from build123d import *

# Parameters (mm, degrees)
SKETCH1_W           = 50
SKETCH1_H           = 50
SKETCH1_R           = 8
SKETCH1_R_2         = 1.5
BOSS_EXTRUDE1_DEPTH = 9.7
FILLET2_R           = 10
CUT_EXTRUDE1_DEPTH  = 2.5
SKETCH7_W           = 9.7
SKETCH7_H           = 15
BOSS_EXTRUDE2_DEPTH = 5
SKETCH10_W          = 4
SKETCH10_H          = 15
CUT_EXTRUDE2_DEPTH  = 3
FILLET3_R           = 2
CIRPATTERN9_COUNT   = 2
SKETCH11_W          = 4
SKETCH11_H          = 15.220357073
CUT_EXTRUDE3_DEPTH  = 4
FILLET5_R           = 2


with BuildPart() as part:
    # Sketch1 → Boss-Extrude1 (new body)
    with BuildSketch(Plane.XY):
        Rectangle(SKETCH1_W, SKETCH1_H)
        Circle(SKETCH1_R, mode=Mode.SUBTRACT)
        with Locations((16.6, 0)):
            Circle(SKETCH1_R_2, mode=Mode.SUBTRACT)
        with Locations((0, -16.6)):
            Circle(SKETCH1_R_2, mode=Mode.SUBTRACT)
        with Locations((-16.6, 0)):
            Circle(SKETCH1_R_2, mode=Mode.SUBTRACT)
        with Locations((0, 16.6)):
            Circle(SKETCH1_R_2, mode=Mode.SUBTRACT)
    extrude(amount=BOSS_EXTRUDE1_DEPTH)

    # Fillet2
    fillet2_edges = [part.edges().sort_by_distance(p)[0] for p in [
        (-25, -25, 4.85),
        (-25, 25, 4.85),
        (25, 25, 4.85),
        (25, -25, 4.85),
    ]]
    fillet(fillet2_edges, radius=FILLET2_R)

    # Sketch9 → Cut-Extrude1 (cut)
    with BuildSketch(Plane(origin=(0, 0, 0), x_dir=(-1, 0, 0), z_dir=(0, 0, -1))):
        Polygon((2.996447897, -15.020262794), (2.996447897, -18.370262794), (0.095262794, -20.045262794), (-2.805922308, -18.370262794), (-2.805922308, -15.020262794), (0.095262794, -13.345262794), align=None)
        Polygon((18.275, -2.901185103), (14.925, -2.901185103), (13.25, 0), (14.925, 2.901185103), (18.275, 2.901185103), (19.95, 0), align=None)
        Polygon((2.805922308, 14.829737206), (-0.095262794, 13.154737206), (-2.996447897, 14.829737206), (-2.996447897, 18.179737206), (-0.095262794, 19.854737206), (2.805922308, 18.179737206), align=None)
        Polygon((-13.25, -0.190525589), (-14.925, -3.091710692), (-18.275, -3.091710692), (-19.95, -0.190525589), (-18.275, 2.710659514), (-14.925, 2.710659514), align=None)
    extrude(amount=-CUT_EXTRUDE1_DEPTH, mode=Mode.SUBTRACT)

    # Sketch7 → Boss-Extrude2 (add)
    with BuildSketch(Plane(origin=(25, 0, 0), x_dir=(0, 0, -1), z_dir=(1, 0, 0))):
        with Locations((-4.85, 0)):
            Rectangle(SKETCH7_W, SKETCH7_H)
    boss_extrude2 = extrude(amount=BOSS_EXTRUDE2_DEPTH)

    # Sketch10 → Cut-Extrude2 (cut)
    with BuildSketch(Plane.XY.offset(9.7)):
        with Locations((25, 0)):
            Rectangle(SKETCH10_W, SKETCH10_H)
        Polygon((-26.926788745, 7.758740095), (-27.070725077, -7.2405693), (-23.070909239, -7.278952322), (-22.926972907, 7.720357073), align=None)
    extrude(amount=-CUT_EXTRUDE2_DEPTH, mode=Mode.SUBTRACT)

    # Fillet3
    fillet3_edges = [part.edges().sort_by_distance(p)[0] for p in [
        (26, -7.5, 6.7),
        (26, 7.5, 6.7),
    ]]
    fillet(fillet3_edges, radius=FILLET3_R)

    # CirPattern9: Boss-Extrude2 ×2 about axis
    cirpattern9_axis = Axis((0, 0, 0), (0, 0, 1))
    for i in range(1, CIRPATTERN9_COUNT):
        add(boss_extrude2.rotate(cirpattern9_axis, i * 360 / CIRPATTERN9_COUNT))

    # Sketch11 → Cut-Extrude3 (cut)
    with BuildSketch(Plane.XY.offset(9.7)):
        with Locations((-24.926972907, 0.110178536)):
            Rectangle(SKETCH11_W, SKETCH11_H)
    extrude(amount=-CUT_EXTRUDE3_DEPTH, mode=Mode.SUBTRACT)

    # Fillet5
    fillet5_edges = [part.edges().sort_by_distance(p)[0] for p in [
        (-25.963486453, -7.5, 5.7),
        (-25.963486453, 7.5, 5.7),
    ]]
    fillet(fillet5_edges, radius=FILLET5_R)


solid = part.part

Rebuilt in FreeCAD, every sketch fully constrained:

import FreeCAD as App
import Part
import Sketcher

V = App.Vector
Q = App.Units.Quantity


def edges_at(feature, points):
    """Names of the edges that pass closest to the given points."""
    edges = feature.Shape.Edges
    near = lambda p: min(range(len(edges)), key=lambda i: edges[i].distToShape(Part.Vertex(*p))[0])
    return sorted({f"Edge{near(p) + 1}" for p in points})

doc = App.newDocument("Part")
body = doc.addObject("PartDesign::Body", "Body")

# Sketch on XY plane
sketch1 = body.newObject("Sketcher::SketchObject", "Sketch")
sketch1.AttachmentSupport = (doc.getObject("XY_Plane"), [""])
sketch1.MapMode = "FlatFace"
sketch1.addGeometry([
    Part.LineSegment(V(-25, 25, 0), V(-25, -25, 0)),  # 0
    Part.LineSegment(V(-25, -25, 0), V(25, -25, 0)),  # 1
    Part.LineSegment(V(25, -25, 0), V(25, 25, 0)),  # 2
    Part.LineSegment(V(25, 25, 0), V(-25, 25, 0)),  # 3
    Part.Circle(V(0, -16.6, 0), V(0, 0, 1), 1.5),  # 4
    Part.Circle(V(-16.6, 0, 0), V(0, 0, 1), 1.5),  # 5
    Part.Circle(V(0, 0, 0), V(0, 0, 1), 8),  # 6
    Part.Circle(V(16.6, 0, 0), V(0, 0, 1), 1.5),  # 7
    Part.Circle(V(0, 16.6, 0), V(0, 0, 1), 1.5),  # 8
], False)
sketch1.addConstraint([
    Sketcher.Constraint("Coincident", 0, 2, 1, 1),
    Sketcher.Constraint("Coincident", 1, 2, 2, 1),
    Sketcher.Constraint("Coincident", 2, 2, 3, 1),
    Sketcher.Constraint("Coincident", 3, 2, 0, 1),
    Sketcher.Constraint("Vertical", 0),
    Sketcher.Constraint("Horizontal", 1),
    Sketcher.Constraint("Vertical", 2),
    Sketcher.Constraint("Horizontal", 3),
    Sketcher.Constraint("Coincident", 6, 3, -1, 1),
    Sketcher.Constraint("Equal", 4, 5),
    Sketcher.Constraint("Equal", 5, 7),
    Sketcher.Constraint("Equal", 7, 8),
    Sketcher.Constraint("Symmetric", 5, 3, 7, 3, -1, 1),
    Sketcher.Constraint("Symmetric", 4, 3, 8, 3, -1, 1),
    Sketcher.Constraint("Symmetric", 0, 2, 2, 2, -1, 1),
    Sketcher.Constraint("PointOnObject", 4, 3, -2),
    Sketcher.Constraint("PointOnObject", 5, 3, -1),
    Sketcher.Constraint("Equal", 3, 0),
    Sketcher.Constraint("Diameter", 4, Q("3 mm")),
    Sketcher.Constraint("Diameter", 6, Q("16 mm")),
    Sketcher.Constraint("DistanceX", 1, 1, 1, 2, Q("50 mm")),
    Sketcher.Constraint("DistanceY", 4, 3, -1, 1, Q("16.6 mm")),
    Sketcher.Constraint("DistanceX", 5, 3, -1, 1, Q("16.6 mm")),
])
pad1 = body.newObject("PartDesign::Pad", "Pad")
pad1.Profile = sketch1
pad1.Length = 9.7
doc.recompute()

fillet = body.newObject("PartDesign::Fillet", "Fillet")
fillet.Base = (pad1, edges_at(pad1, [
    (-25, -25, 4.85),
    (-25, 25, 4.85),
    (25, 25, 4.85),
    (25, -25, 4.85),
]))
fillet.Radius = 10

# Sketch on XY plane
sketch2 = body.newObject("Sketcher::SketchObject", "Sketch001")
sketch2.AttachmentSupport = (doc.getObject("XY_Plane"), [""])
sketch2.MapMode = "FlatFace"
sketch2.addGeometry([
    Part.LineSegment(V(-2.996448, -18.370263, 0), V(-2.996448, -15.020263, 0)),  # 0
    Part.LineSegment(V(-2.996448, -15.020263, 0), V(-0.095263, -13.345263, 0)),  # 1
    Part.LineSegment(V(-0.095263, -13.345263, 0), V(2.805922, -15.020263, 0)),  # 2
    Part.LineSegment(V(2.805922, -15.020263, 0), V(2.805922, -18.370263, 0)),  # 3
    Part.LineSegment(V(2.805922, -18.370263, 0), V(-0.095263, -20.045263, 0)),  # 4
    Part.LineSegment(V(-0.095263, -20.045263, 0), V(-2.996448, -18.370263, 0)),  # 5
    Part.LineSegment(V(-14.925, -2.901185, 0), V(-18.275, -2.901185, 0)),  # 6
    Part.LineSegment(V(-18.275, -2.901185, 0), V(-19.95, 0, 0)),  # 7
    Part.LineSegment(V(-19.95, 0, 0), V(-18.275, 2.901185, 0)),  # 8
    Part.LineSegment(V(-18.275, 2.901185, 0), V(-14.925, 2.901185, 0)),  # 9
    Part.LineSegment(V(-14.925, 2.901185, 0), V(-13.25, 0, 0)),  # 10
    Part.LineSegment(V(-13.25, 0, 0), V(-14.925, -2.901185, 0)),  # 11
    Part.LineSegment(V(0.095263, 13.154737, 0), V(-2.805922, 14.829737, 0)),  # 12
    Part.LineSegment(V(-2.805922, 14.829737, 0), V(-2.805922, 18.179737, 0)),  # 13
    Part.LineSegment(V(-2.805922, 18.179737, 0), V(0.095263, 19.854737, 0)),  # 14
    Part.LineSegment(V(0.095263, 19.854737, 0), V(2.996448, 18.179737, 0)),  # 15
    Part.LineSegment(V(2.996448, 18.179737, 0), V(2.996448, 14.829737, 0)),  # 16
    Part.LineSegment(V(2.996448, 14.829737, 0), V(0.095263, 13.154737, 0)),  # 17
    Part.LineSegment(V(14.925, -3.091711, 0), V(13.25, -0.190526, 0)),  # 18
    Part.LineSegment(V(13.25, -0.190526, 0), V(14.925, 2.71066, 0)),  # 19
    Part.LineSegment(V(14.925, 2.71066, 0), V(18.275, 2.71066, 0)),  # 20
    Part.LineSegment(V(18.275, 2.71066, 0), V(19.95, -0.190526, 0)),  # 21
    Part.LineSegment(V(19.95, -0.190526, 0), V(18.275, -3.091711, 0)),  # 22
    Part.LineSegment(V(18.275, -3.091711, 0), V(14.925, -3.091711, 0)),  # 23
], False)
sketch2.addConstraint([
    Sketcher.Constraint("Coincident", 0, 2, 1, 1),
    Sketcher.Constraint("Coincident", 1, 2, 2, 1),
    Sketcher.Constraint("Coincident", 2, 2, 3, 1),
    Sketcher.Constraint("Coincident", 3, 2, 4, 1),
    Sketcher.Constraint("Coincident", 4, 2, 5, 1),
    Sketcher.Constraint("Coincident", 5, 2, 0, 1),
    Sketcher.Constraint("Coincident", 6, 2, 7, 1),
    Sketcher.Constraint("Coincident", 7, 2, 8, 1),
    Sketcher.Constraint("Coincident", 8, 2, 9, 1),
    Sketcher.Constraint("Coincident", 9, 2, 10, 1),
    Sketcher.Constraint("Coincident", 10, 2, 11, 1),
    Sketcher.Constraint("Coincident", 11, 2, 6, 1),
    Sketcher.Constraint("Coincident", 12, 2, 13, 1),
    Sketcher.Constraint("Coincident", 13, 2, 14, 1),
    Sketcher.Constraint("Coincident", 14, 2, 15, 1),
    Sketcher.Constraint("Coincident", 15, 2, 16, 1),
    Sketcher.Constraint("Coincident", 16, 2, 17, 1),
    Sketcher.Constraint("Coincident", 17, 2, 12, 1),
    Sketcher.Constraint("Coincident", 18, 2, 19, 1),
    Sketcher.Constraint("Coincident", 19, 2, 20, 1),
    Sketcher.Constraint("Coincident", 20, 2, 21, 1),
    Sketcher.Constraint("Coincident", 21, 2, 22, 1),
    Sketcher.Constraint("Coincident", 22, 2, 23, 1),
    Sketcher.Constraint("Coincident", 23, 2, 18, 1),
    Sketcher.Constraint("Vertical", 0),
    Sketcher.Constraint("Vertical", 3),
    Sketcher.Constraint("Horizontal", 6),
    Sketcher.Constraint("Horizontal", 9),
    Sketcher.Constraint("Vertical", 13),
    Sketcher.Constraint("Vertical", 16),
    Sketcher.Constraint("Horizontal", 20),
    Sketcher.Constraint("Horizontal", 23),
    Sketcher.Constraint("Symmetric", 6, 2, 8, 2, -1),
    Sketcher.Constraint("PointOnObject", 7, 2, -1),
    Sketcher.Constraint("PointOnObject", 10, 2, -1),
    Sketcher.Constraint("Parallel", 1, 4),
    Sketcher.Constraint("Parallel", 2, 5),
    Sketcher.Constraint("Perpendicular", 4, 7),
    Sketcher.Constraint("Perpendicular", 5, 8),
    Sketcher.Constraint("Parallel", 7, 10),
    Sketcher.Constraint("Parallel", 8, 11),
    Sketcher.Constraint("Perpendicular", 11, 12),
    Sketcher.Constraint("Perpendicular", 10, 14),
    Sketcher.Constraint("Parallel", 12, 15),
    Sketcher.Constraint("Parallel", 14, 17),
    Sketcher.Constraint("Perpendicular", 17, 18),
    Sketcher.Constraint("Perpendicular", 15, 19),
    Sketcher.Constraint("Parallel", 18, 21),
    Sketcher.Constraint("Parallel", 19, 22),
    Sketcher.Constraint("Horizontal", 0, 2, 2, 2),
    Sketcher.Constraint("Horizontal", 3, 2, 5, 2),
    Sketcher.Constraint("Horizontal", 13, 2, 15, 2),
    Sketcher.Constraint("Horizontal", 12, 2, 16, 2),
    Sketcher.Constraint("Horizontal", 18, 2, 21, 2),
    Sketcher.Constraint("Vertical", 20, 2, 22, 2),
    Sketcher.Constraint("Equal", 9, 20),
    Sketcher.Constraint("Equal", 23, 0),
    Sketcher.Constraint("Equal", 3, 13),
    Sketcher.Constraint("Equal", 5, 7),
    Sketcher.Constraint("Equal", 11, 12),
    Sketcher.Constraint("Equal", 17, 18),
    Sketcher.Constraint("Angle", 1, Q("30 deg")),
    Sketcher.Constraint("DistanceX", 6, 2, 6, 1, Q("3.35 mm")),
    Sketcher.Constraint("DistanceY", 4, 2, 1, 2, Q("6.7 mm")),
    Sketcher.Constraint("DistanceX", 7, 2, -1, 1, Q("19.95 mm")),
    Sketcher.Constraint("DistanceX", -1, 1, 18, 2, Q("13.25 mm")),
    Sketcher.Constraint("DistanceY", -1, 1, 19, 2, Q("2.71066 mm")),
    Sketcher.Constraint("DistanceX", 0, 2, -1, 1, Q("2.996448 mm")),
    Sketcher.Constraint("DistanceY", 0, 2, -1, 1, Q("15.020263 mm")),
    Sketcher.Constraint("DistanceX", 12, 2, -1, 1, Q("2.805922 mm")),
    Sketcher.Constraint("DistanceY", -1, 1, 12, 2, Q("14.829737 mm")),
])
pocket1 = body.newObject("PartDesign::Pocket", "Pocket")
pocket1.Profile = sketch2
pocket1.Length = 2.5
pocket1.Reversed = True

# Sketch on YZ plane
sketch3 = body.newObject("Sketcher::SketchObject", "Sketch002")
sketch3.AttachmentSupport = (doc.getObject("YZ_Plane"), [""])
sketch3.MapMode = "FlatFace"
sketch3.AttachmentOffset = App.Placement(V(0, 0, 25), App.Rotation())
sketch3.addGeometry([
    Part.LineSegment(V(7.5, 9.7, 0), V(-7.5, 9.7, 0)),
    Part.LineSegment(V(-7.5, 9.7, 0), V(-7.5, 0, 0)),
    Part.LineSegment(V(-7.5, 0, 0), V(7.5, 0, 0)),
    Part.LineSegment(V(7.5, 0, 0), V(7.5, 9.7, 0)),
], False)
sketch3.addConstraint([
    Sketcher.Constraint("Coincident", 0, 2, 1, 1),
    Sketcher.Constraint("Coincident", 1, 2, 2, 1),
    Sketcher.Constraint("Coincident", 2, 2, 3, 1),
    Sketcher.Constraint("Coincident", 3, 2, 0, 1),
    Sketcher.Constraint("Horizontal", 0),
    Sketcher.Constraint("Vertical", 1),
    Sketcher.Constraint("Horizontal", 2),
    Sketcher.Constraint("Vertical", 3),
    Sketcher.Constraint("Symmetric", 1, 2, 2, 2, -1, 1),
    Sketcher.Constraint("DistanceX", 0, 2, 0, 1, Q("15 mm")),
    Sketcher.Constraint("DistanceY", 1, 2, 1, 1, Q("9.7 mm")),
])
pad2 = body.newObject("PartDesign::Pad", "Pad001")
pad2.Profile = sketch3
pad2.Length = 5

# Sketch on XY plane
sketch4 = body.newObject("Sketcher::SketchObject", "Sketch003")
sketch4.AttachmentSupport = (doc.getObject("XY_Plane"), [""])
sketch4.MapMode = "FlatFace"
sketch4.AttachmentOffset = App.Placement(V(0, 0, 9.7), App.Rotation())
sketch4.addGeometry([
    Part.LineSegment(V(23, 7.5, 0), V(23, -7.5, 0)),  # 0
    Part.LineSegment(V(23, -7.5, 0), V(27, -7.5, 0)),  # 1
    Part.LineSegment(V(27, -7.5, 0), V(27, 7.5, 0)),  # 2
    Part.LineSegment(V(27, 7.5, 0), V(23, 7.5, 0)),  # 3
    Part.LineSegment(V(-26.926789, 7.75874, 0), V(-27.070725, -7.240569, 0)),  # 4
    Part.LineSegment(V(-27.070725, -7.240569, 0), V(-23.070909, -7.278952, 0)),  # 5
    Part.LineSegment(V(-23.070909, -7.278952, 0), V(-22.926973, 7.720357, 0)),  # 6
    Part.LineSegment(V(-22.926973, 7.720357, 0), V(-26.926789, 7.75874, 0)),  # 7
], False)
sketch4.addConstraint([
    Sketcher.Constraint("Coincident", 0, 2, 1, 1),
    Sketcher.Constraint("Coincident", 1, 2, 2, 1),
    Sketcher.Constraint("Coincident", 2, 2, 3, 1),
    Sketcher.Constraint("Coincident", 3, 2, 0, 1),
    Sketcher.Constraint("Coincident", 4, 2, 5, 1),
    Sketcher.Constraint("Coincident", 5, 2, 6, 1),
    Sketcher.Constraint("Coincident", 6, 2, 7, 1),
    Sketcher.Constraint("Coincident", 7, 2, 4, 1),
    Sketcher.Constraint("Vertical", 0),
    Sketcher.Constraint("Horizontal", 1),
    Sketcher.Constraint("Vertical", 2),
    Sketcher.Constraint("Horizontal", 3),
    Sketcher.Constraint("Perpendicular", 4, 5),
    Sketcher.Constraint("Perpendicular", 5, 6),
    Sketcher.Constraint("Perpendicular", 6, 7),
    Sketcher.Constraint("DistanceX", 1, 1, 1, 2, Q("4 mm")),
    Sketcher.Constraint("DistanceY", 0, 2, 0, 1, Q("15 mm")),
    Sketcher.Constraint("Distance", 4, Q("15 mm")),
    Sketcher.Constraint("Distance", 5, Q("4 mm")),
    Sketcher.Constraint("DistanceX", -1, 1, 0, 2, Q("23 mm")),
    Sketcher.Constraint("DistanceY", 0, 2, -1, 1, Q("7.5 mm")),
    Sketcher.Constraint("DistanceY", 4, 2, -1, 1, Q("7.240569 mm")),
    Sketcher.Constraint("DistanceX", 5, 2, -1, 1, Q("23.070909 mm")),
    Sketcher.Constraint("DistanceX", 7, 2, -1, 1, Q("26.926789 mm")),
])
pocket2 = body.newObject("PartDesign::Pocket", "Pocket001")
pocket2.Profile = sketch4
pocket2.Length = 3
doc.recompute()

fillet2 = body.newObject("PartDesign::Fillet", "Fillet001")
fillet2.Base = (pocket2, edges_at(pocket2, [(26, -7.5, 6.7), (26, 7.5, 6.7)]))
fillet2.Radius = 2
doc.recompute()

polarpattern = body.newObject("PartDesign::PolarPattern", "PolarPattern")
polarpattern.Originals = [pad2]
polarpattern.Axis = (doc.getObject("Z_Axis"), [""])
polarpattern.Angle = 360
polarpattern.Occurrences = 2
body.Tip = polarpattern

# Sketch on XY plane
sketch5 = body.newObject("Sketcher::SketchObject", "Sketch004")
sketch5.AttachmentSupport = (doc.getObject("XY_Plane"), [""])
sketch5.MapMode = "FlatFace"
sketch5.AttachmentOffset = App.Placement(V(0, 0, 9.7), App.Rotation())
sketch5.addGeometry([
    Part.LineSegment(V(-26.926973, 7.720357, 0), V(-26.926973, -7.5, 0)),
    Part.LineSegment(V(-26.926973, -7.5, 0), V(-22.926973, -7.5, 0)),
    Part.LineSegment(V(-22.926973, -7.5, 0), V(-22.926973, 7.720357, 0)),
    Part.LineSegment(V(-22.926973, 7.720357, 0), V(-26.926973, 7.720357, 0)),
], False)
sketch5.addConstraint([
    Sketcher.Constraint("Coincident", 0, 2, 1, 1),
    Sketcher.Constraint("Coincident", 1, 2, 2, 1),
    Sketcher.Constraint("Coincident", 2, 2, 3, 1),
    Sketcher.Constraint("Coincident", 3, 2, 0, 1),
    Sketcher.Constraint("Vertical", 0),
    Sketcher.Constraint("Horizontal", 1),
    Sketcher.Constraint("Vertical", 2),
    Sketcher.Constraint("Horizontal", 3),
    Sketcher.Constraint("DistanceX", 1, 1, 1, 2, Q("4 mm")),
    Sketcher.Constraint("DistanceY", 0, 2, -1, 1, Q("7.5 mm")),
    Sketcher.Constraint("DistanceY", 0, 2, 0, 1, Q("15.220357 mm")),
    Sketcher.Constraint("DistanceX", 0, 2, -1, 1, Q("26.926973 mm")),
])
pocket3 = body.newObject("PartDesign::Pocket", "Pocket002")
pocket3.Profile = sketch5
pocket3.Length = 4
doc.recompute()

fillet3 = body.newObject("PartDesign::Fillet", "Fillet002")
fillet3.Base = (pocket3, edges_at(pocket3, [(-25.963, -7.5, 5.7), (-25.963, 7.5, 5.7)]))
fillet3.Radius = 2

doc.recompute()
